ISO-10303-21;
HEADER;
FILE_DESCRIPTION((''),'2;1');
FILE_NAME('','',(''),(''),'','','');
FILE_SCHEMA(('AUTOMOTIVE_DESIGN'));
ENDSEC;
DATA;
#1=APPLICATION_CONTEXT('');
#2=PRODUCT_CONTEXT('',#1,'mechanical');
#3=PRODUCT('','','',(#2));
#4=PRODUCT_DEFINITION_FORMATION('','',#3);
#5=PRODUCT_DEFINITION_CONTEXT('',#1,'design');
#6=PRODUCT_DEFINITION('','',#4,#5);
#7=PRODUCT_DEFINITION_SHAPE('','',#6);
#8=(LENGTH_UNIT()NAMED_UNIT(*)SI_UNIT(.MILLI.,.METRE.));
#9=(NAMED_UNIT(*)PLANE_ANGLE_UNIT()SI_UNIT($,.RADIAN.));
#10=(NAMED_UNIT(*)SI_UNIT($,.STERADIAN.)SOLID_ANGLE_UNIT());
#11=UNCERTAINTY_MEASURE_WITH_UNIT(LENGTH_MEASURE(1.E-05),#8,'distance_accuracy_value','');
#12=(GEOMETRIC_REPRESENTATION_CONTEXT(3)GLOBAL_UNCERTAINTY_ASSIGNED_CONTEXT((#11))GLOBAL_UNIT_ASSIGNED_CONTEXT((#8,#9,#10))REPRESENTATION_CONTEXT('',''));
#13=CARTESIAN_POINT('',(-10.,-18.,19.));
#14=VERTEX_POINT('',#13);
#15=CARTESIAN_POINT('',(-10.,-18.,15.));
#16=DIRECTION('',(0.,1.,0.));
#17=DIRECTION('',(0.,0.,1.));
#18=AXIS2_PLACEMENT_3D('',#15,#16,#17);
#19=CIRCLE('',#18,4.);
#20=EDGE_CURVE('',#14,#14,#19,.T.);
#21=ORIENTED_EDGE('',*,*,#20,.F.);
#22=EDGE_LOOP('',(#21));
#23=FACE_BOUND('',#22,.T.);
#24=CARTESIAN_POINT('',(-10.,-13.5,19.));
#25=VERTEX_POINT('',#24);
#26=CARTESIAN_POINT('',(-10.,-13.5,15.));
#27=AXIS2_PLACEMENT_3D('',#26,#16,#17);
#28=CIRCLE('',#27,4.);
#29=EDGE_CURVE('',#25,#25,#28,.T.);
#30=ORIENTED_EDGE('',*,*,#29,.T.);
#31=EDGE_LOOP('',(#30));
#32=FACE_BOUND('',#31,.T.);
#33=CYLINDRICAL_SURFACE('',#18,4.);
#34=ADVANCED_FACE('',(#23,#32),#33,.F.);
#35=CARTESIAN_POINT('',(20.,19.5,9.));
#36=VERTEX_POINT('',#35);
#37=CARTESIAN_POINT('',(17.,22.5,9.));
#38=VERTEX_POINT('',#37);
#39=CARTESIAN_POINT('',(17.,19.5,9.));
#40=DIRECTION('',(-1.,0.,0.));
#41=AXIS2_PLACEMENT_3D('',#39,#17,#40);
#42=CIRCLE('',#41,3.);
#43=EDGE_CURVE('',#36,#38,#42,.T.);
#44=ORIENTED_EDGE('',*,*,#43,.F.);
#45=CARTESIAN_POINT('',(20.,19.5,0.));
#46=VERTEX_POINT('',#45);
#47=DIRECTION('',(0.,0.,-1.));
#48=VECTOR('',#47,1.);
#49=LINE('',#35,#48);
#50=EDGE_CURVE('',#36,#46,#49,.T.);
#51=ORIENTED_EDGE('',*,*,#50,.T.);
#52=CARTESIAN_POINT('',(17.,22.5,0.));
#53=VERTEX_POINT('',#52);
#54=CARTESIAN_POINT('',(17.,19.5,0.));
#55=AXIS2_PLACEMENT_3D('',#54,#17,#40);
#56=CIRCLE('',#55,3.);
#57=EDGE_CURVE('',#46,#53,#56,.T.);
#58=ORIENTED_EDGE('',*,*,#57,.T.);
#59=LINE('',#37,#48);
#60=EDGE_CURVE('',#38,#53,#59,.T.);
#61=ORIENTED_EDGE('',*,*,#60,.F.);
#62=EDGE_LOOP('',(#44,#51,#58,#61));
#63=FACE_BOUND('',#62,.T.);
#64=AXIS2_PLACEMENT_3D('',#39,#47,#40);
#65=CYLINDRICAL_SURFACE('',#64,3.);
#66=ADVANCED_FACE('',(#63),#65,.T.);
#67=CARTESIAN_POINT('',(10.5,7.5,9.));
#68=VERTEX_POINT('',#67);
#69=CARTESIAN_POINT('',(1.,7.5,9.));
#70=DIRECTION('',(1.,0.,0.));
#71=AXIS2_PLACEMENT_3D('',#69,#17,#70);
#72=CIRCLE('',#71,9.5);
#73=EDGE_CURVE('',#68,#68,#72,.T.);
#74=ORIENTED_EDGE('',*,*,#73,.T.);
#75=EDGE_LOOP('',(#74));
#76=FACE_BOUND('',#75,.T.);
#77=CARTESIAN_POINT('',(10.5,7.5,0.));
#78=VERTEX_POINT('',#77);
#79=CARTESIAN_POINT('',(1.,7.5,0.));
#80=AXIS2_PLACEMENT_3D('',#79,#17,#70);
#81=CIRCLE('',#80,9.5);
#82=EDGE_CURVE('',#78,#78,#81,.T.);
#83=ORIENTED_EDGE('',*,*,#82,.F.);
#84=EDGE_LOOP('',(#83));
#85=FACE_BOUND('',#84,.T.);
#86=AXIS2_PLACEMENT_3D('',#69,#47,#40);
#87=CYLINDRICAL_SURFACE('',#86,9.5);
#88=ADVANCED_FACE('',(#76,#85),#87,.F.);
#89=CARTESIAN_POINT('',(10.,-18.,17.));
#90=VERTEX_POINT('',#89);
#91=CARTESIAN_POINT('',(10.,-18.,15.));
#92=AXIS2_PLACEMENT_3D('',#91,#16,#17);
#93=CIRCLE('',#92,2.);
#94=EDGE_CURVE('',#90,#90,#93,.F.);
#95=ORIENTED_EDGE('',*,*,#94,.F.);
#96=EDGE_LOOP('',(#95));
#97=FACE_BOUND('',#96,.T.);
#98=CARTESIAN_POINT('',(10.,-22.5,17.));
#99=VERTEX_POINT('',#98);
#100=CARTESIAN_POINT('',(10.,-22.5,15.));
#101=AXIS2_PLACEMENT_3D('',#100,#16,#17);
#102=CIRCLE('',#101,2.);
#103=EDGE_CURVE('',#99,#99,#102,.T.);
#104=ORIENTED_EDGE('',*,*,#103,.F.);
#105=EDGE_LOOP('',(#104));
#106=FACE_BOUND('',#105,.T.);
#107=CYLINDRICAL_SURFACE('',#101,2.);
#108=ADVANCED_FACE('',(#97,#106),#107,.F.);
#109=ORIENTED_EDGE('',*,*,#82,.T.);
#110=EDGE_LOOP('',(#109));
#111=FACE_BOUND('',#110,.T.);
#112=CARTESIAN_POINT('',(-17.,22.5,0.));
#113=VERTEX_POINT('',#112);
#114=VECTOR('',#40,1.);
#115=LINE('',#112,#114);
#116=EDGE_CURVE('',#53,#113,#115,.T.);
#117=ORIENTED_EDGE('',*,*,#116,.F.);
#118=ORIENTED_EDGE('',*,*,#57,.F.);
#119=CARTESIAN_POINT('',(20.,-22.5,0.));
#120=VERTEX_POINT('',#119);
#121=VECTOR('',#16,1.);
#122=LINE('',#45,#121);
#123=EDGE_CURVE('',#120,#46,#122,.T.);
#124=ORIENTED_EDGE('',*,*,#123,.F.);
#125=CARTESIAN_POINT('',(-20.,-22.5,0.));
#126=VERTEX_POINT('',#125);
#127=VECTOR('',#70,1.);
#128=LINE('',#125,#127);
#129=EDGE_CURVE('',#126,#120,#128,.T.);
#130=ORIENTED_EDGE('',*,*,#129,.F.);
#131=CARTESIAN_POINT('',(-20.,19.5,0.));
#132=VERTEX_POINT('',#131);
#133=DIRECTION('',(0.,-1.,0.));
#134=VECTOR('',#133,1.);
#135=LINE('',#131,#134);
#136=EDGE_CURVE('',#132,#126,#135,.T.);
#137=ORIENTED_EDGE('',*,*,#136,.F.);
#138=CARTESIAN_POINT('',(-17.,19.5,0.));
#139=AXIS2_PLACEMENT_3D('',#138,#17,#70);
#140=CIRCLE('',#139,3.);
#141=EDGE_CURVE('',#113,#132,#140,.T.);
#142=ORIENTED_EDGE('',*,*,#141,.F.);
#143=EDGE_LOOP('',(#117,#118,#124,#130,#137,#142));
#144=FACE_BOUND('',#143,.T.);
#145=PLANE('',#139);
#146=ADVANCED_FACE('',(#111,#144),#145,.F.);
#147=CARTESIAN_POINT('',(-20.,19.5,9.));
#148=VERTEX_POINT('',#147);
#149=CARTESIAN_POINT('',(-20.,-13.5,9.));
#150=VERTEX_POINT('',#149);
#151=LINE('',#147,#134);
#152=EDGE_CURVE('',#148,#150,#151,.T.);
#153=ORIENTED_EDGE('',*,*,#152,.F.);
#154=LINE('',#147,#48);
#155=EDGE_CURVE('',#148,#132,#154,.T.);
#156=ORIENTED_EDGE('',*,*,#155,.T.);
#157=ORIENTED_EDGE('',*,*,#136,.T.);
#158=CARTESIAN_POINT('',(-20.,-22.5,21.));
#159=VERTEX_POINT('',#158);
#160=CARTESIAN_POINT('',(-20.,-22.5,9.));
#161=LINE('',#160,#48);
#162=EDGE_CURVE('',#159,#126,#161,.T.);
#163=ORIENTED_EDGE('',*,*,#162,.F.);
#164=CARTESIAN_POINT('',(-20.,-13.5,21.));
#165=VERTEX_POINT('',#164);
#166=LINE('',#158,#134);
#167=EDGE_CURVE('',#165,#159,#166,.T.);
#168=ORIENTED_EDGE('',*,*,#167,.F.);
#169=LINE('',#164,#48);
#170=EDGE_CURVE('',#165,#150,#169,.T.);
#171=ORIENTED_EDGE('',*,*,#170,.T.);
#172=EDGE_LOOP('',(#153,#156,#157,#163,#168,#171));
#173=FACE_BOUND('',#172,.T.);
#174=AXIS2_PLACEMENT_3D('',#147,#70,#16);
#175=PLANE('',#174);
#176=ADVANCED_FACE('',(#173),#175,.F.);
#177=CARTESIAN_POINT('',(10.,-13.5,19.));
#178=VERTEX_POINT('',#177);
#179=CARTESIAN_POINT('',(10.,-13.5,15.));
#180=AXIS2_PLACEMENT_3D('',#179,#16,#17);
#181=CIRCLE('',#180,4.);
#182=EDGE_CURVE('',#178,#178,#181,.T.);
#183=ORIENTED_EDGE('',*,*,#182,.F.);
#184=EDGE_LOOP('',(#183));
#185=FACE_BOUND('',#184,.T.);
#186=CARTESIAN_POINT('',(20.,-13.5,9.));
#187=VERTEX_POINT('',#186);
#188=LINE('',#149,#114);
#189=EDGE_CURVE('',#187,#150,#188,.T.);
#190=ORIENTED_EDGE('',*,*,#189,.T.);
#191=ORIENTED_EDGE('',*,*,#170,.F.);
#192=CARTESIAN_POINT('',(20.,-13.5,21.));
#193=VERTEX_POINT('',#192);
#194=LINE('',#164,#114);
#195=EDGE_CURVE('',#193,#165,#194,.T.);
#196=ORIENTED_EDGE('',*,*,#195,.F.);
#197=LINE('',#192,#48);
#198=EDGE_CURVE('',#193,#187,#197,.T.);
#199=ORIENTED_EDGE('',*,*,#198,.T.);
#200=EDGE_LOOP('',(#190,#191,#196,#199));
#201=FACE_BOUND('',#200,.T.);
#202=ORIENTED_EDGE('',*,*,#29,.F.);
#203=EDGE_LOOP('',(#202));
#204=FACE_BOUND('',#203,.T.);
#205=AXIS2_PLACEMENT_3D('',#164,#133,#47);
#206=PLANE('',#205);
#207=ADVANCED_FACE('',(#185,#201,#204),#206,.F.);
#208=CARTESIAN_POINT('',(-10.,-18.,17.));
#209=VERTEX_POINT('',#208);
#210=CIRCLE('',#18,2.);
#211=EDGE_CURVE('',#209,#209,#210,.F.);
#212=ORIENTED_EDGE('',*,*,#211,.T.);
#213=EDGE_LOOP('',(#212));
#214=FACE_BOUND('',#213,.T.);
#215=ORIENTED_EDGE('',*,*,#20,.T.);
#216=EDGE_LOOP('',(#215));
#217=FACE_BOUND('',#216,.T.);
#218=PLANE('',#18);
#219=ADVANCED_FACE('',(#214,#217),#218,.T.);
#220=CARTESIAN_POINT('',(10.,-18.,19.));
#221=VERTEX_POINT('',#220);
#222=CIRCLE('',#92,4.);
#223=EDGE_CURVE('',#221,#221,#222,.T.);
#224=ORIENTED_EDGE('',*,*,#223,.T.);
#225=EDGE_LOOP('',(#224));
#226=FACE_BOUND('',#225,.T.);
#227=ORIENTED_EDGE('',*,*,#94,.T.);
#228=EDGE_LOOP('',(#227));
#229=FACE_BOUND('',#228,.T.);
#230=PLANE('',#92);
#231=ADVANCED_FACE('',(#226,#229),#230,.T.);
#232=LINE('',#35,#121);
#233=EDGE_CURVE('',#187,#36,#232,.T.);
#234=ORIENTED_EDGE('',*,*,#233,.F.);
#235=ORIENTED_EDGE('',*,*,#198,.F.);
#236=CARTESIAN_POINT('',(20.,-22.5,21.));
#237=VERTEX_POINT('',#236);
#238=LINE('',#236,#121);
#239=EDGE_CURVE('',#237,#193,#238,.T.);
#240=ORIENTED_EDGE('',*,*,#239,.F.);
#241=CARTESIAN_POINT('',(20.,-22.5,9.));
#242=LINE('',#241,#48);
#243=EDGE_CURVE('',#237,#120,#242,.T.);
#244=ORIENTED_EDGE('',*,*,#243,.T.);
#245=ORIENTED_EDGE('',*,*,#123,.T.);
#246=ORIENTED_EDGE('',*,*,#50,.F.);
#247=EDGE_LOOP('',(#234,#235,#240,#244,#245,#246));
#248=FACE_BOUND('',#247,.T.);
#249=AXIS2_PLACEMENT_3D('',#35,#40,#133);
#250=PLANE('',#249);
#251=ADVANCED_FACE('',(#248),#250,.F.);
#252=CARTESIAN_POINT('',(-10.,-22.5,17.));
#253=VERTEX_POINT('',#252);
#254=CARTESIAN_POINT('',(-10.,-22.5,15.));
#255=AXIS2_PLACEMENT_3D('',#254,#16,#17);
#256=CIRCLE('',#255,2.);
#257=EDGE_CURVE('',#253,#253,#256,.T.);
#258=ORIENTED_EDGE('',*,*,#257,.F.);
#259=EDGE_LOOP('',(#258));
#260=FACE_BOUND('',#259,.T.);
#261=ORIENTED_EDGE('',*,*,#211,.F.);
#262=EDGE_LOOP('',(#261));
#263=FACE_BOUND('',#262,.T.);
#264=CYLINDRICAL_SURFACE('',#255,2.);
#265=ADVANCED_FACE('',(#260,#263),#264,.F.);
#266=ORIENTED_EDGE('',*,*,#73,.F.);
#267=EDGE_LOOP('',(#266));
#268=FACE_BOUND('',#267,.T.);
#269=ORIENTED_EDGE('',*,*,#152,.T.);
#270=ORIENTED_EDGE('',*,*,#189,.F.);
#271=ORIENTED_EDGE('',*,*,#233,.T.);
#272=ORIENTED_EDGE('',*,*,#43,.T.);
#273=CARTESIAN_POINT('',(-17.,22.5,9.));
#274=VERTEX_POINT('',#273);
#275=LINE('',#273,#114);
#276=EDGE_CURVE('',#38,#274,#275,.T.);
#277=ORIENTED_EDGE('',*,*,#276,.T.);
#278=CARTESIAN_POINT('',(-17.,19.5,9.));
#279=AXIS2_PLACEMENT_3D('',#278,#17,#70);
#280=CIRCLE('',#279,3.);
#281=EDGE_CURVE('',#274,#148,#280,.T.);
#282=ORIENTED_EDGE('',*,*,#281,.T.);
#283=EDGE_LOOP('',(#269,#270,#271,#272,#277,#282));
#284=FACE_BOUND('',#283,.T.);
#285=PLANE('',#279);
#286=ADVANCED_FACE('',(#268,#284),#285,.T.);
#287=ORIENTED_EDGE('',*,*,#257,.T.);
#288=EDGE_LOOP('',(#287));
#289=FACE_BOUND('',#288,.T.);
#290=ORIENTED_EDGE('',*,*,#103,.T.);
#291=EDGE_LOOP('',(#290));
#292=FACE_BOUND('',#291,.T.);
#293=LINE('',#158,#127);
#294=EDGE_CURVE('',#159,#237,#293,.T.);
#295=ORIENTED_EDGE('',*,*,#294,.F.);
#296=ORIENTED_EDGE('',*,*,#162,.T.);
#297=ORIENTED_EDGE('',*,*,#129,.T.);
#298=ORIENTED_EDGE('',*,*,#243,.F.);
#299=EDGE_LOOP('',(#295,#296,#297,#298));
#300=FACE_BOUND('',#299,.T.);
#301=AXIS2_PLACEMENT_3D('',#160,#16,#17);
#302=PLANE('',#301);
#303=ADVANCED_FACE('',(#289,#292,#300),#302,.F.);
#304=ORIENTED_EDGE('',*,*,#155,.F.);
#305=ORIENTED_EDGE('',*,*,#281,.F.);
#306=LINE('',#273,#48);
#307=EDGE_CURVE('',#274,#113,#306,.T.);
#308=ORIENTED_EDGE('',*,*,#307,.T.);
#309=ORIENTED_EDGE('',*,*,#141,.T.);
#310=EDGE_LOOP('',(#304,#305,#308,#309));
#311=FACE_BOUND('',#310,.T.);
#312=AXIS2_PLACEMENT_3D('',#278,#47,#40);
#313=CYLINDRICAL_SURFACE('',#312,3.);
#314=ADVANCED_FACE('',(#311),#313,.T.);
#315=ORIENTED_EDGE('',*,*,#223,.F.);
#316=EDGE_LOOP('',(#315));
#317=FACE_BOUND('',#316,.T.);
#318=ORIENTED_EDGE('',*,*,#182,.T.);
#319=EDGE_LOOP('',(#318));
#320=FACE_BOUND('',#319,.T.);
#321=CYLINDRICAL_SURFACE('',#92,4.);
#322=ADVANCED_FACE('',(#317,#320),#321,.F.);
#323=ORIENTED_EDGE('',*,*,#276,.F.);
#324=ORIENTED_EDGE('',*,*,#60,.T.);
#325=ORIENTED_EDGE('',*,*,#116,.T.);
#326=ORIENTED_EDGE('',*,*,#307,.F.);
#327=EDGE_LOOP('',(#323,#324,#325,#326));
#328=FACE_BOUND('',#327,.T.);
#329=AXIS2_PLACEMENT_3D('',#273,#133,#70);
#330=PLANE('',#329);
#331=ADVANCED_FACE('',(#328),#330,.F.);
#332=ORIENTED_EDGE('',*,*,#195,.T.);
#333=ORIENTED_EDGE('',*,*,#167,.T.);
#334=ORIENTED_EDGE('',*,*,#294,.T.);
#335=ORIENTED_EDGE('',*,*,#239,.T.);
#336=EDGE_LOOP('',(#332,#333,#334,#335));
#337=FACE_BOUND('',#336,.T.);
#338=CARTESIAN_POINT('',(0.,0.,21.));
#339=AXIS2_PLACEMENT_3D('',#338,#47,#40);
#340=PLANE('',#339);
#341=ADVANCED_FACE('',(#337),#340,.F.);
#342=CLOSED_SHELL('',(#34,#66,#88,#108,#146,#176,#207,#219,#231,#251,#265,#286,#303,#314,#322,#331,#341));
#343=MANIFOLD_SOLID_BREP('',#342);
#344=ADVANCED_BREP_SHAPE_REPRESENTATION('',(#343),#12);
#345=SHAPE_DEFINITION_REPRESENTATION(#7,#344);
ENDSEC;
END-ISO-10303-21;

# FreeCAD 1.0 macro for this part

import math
import FreeCAD as App
import Part
import Sketcher


def add_polygon(sketch, points):
    """Adds a closed chain of lines whose ends are joined by coincident constraints."""
    first, n = sketch.GeometryCount, len(points)
    for a, b in zip(points, points[1:] + points[:1]):
        sketch.addGeometry(Part.LineSegment(App.Vector(*a, 0), App.Vector(*b, 0)), False)
    for i in range(n):
        sketch.addConstraint(Sketcher.Constraint("Coincident", first + i, 2, first + (i + 1) % n, 1))

doc = App.newDocument("Part")
params = doc.addObject("Spreadsheet::Sheet", "Params")
for row, (alias, value) in enumerate([
    ("sketch1_diameter", "19 mm"),
    ("sketch1_radius", "3 mm"),
    ("sketch1_width", "34 mm"),
    ("sketch1_height", "42 mm"),
    ("pad1_length", "9 mm"),
    ("sketch2_width", "40 mm"),
    ("sketch2_height", "9 mm"),
    ("pad2_length", "12 mm"),
    ("sketch3_diameter", "4 mm"),
    ("sketch4_diameter", "8 mm"),
    ("pocket2_length", "4.5 mm"),
], start=1):
    params.set(f"A{row}", alias)
    params.set(f"B{row}", "=" + value)
    params.setAlias(f"B{row}", alias)

body = doc.addObject("PartDesign::Body", "Body")

sketch1 = body.newObject("Sketcher::SketchObject", "Sketch")
sketch1.AttachmentSupport = (doc.getObject("XY_Plane"), [""])
sketch1.MapMode = "FlatFace"
sketch1.addGeometry(Part.LineSegment(App.Vector(17, 22.5, 0), App.Vector(-17, 22.5, 0)), False)
sketch1.addGeometry(Part.ArcOfCircle(Part.Circle(App.Vector(-17, 19.5, 0), App.Vector(0, 0, 1), 3), math.radians(90), math.radians(180)), False)
sketch1.addGeometry(Part.LineSegment(App.Vector(-20, 19.5, 0), App.Vector(-20, -22.5, 0)), False)
sketch1.addGeometry(Part.LineSegment(App.Vector(-20, -22.5, 0), App.Vector(20, -22.5, 0)), False)
sketch1.addGeometry(Part.LineSegment(App.Vector(20, -22.5, 0), App.Vector(20, 19.5, 0)), False)
sketch1.addGeometry(Part.ArcOfCircle(Part.Circle(App.Vector(17, 19.5, 0), App.Vector(0, 0, 1), 3), math.radians(0), math.radians(90)), False)
sketch1.addGeometry(Part.Circle(App.Vector(1, 7.5, 0), App.Vector(0, 0, 1), 9.5), False)
sketch1.addConstraint(Sketcher.Constraint("Tangent", 0, 2, 1, 1))
sketch1.addConstraint(Sketcher.Constraint("Tangent", 1, 2, 2, 1))
sketch1.addConstraint(Sketcher.Constraint("Coincident", 2, 2, 3, 1))
sketch1.addConstraint(Sketcher.Constraint("Coincident", 3, 2, 4, 1))
sketch1.addConstraint(Sketcher.Constraint("Tangent", 4, 2, 5, 1))
sketch1.addConstraint(Sketcher.Constraint("Tangent", 5, 2, 0, 1))
sketch1.addConstraint(Sketcher.Constraint("Horizontal", 0))
sketch1.addConstraint(Sketcher.Constraint("Vertical", 2))
sketch1.addConstraint(Sketcher.Constraint("Horizontal", 3))
sketch1.addConstraint(Sketcher.Constraint("Vertical", 4))
sketch1.addConstraint(Sketcher.Constraint("Equal", 1, 5))
sketch1.addConstraint(Sketcher.Constraint("Diameter", 6, 19.0))
sketch1.addConstraint(Sketcher.Constraint("Radius", 1, 3.0))
sketch1.addConstraint(Sketcher.Constraint("DistanceX", 0, 2, 0, 1, 34.0))
sketch1.addConstraint(Sketcher.Constraint("DistanceY", 2, 2, 2, 1, 42.0))
sketch1.addConstraint(Sketcher.Constraint("DistanceX", 1, 3, -1, 1, 17.0))
sketch1.addConstraint(Sketcher.Constraint("DistanceX", -1, 1, 6, 3, 1.0))
sketch1.addConstraint(Sketcher.Constraint("DistanceY", 6, 3, 5, 3, 12.0))
sketch1.addConstraint(Sketcher.Constraint("DistanceY", -1, 1, 1, 3, 19.5))
sketch1.setExpression("Constraints[11]", "Params.sketch1_diameter")
sketch1.setExpression("Constraints[12]", "Params.sketch1_radius")
sketch1.setExpression("Constraints[13]", "Params.sketch1_width")
sketch1.setExpression("Constraints[14]", "Params.sketch1_height")
pad1 = body.newObject("PartDesign::Pad", "Pad")
pad1.Profile = sketch1
pad1.setExpression("Length", "Params.pad1_length")

sketch2 = body.newObject("Sketcher::SketchObject", "Sketch001")
sketch2.AttachmentSupport = (doc.getObject("XY_Plane"), [""])
sketch2.MapMode = "FlatFace"
sketch2.AttachmentOffset = App.Placement(App.Vector(0, 0, 9), App.Rotation())
add_polygon(sketch2, [(-20, -13.5), (-20, -22.5), (20, -22.5), (20, -13.5)])
sketch2.addConstraint(Sketcher.Constraint("Vertical", 0))
sketch2.addConstraint(Sketcher.Constraint("Horizontal", 1))
sketch2.addConstraint(Sketcher.Constraint("Vertical", 2))
sketch2.addConstraint(Sketcher.Constraint("Horizontal", 3))
sketch2.addConstraint(Sketcher.Constraint("DistanceX", 1, 1, 1, 2, 40.0))
sketch2.addConstraint(Sketcher.Constraint("DistanceY", 0, 2, 0, 1, 9.0))
sketch2.addConstraint(Sketcher.Constraint("DistanceX", 0, 2, -1, 1, 20.0))
sketch2.addConstraint(Sketcher.Constraint("DistanceY", 0, 2, -1, 1, 22.5))
sketch2.setExpression("Constraints[8]", "Params.sketch2_width")
sketch2.setExpression("Constraints[9]", "Params.sketch2_height")
pad2 = body.newObject("PartDesign::Pad", "Pad001")
pad2.Profile = sketch2
pad2.setExpression("Length", "Params.pad2_length")

sketch3 = body.newObject("Sketcher::SketchObject", "Sketch002")
sketch3.AttachmentSupport = (doc.getObject("XZ_Plane"), [""])
sketch3.MapMode = "FlatFace"
sketch3.AttachmentOffset = App.Placement(App.Vector(0, 0, 13.5), App.Rotation())
sketch3.addGeometry(Part.Circle(App.Vector(-10, 15, 0), App.Vector(0, 0, 1), 2), False)
sketch3.addGeometry(Part.Circle(App.Vector(10, 15, 0), App.Vector(0, 0, 1), 2), False)
sketch3.addConstraint(Sketcher.Constraint("Equal", 0, 1))
sketch3.addConstraint(Sketcher.Constraint("Symmetric", 0, 3, 1, 3, -2))
sketch3.addConstraint(Sketcher.Constraint("Diameter", 0, 4.0))
sketch3.addConstraint(Sketcher.Constraint("DistanceX", 0, 3, -1, 1, 10.0))
sketch3.addConstraint(Sketcher.Constraint("DistanceY", -1, 1, 0, 3, 15.0))
sketch3.setExpression("Constraints[2]", "Params.sketch3_diameter")
pocket1 = body.newObject("PartDesign::Pocket", "Pocket")
pocket1.Profile = sketch3
pocket1.Type = "ThroughAll"
pocket1.Reversed = True

sketch4 = body.newObject("Sketcher::SketchObject", "Sketch003")
sketch4.AttachmentSupport = (doc.getObject("XZ_Plane"), [""])
sketch4.MapMode = "FlatFace"
sketch4.AttachmentOffset = App.Placement(App.Vector(0, 0, 13.5), App.Rotation())
sketch4.addGeometry(Part.Circle(App.Vector(-10, 15, 0), App.Vector(0, 0, 1), 4), False)
sketch4.addGeometry(Part.Circle(App.Vector(10, 15, 0), App.Vector(0, 0, 1), 4), False)
sketch4.addConstraint(Sketcher.Constraint("Equal", 0, 1))
sketch4.addConstraint(Sketcher.Constraint("Symmetric", 0, 3, 1, 3, -2))
sketch4.addConstraint(Sketcher.Constraint("Diameter", 0, 8.0))
sketch4.addConstraint(Sketcher.Constraint("DistanceX", 0, 3, -1, 1, 10.0))
sketch4.addConstraint(Sketcher.Constraint("DistanceY", -1, 1, 0, 3, 15.0))
sketch4.setExpression("Constraints[2]", "Params.sketch4_diameter")
pocket2 = body.newObject("PartDesign::Pocket", "Pocket001")
pocket2.Profile = sketch4
pocket2.setExpression("Length", "Params.pocket2_length")
pocket2.Reversed = True

doc.recompute()
